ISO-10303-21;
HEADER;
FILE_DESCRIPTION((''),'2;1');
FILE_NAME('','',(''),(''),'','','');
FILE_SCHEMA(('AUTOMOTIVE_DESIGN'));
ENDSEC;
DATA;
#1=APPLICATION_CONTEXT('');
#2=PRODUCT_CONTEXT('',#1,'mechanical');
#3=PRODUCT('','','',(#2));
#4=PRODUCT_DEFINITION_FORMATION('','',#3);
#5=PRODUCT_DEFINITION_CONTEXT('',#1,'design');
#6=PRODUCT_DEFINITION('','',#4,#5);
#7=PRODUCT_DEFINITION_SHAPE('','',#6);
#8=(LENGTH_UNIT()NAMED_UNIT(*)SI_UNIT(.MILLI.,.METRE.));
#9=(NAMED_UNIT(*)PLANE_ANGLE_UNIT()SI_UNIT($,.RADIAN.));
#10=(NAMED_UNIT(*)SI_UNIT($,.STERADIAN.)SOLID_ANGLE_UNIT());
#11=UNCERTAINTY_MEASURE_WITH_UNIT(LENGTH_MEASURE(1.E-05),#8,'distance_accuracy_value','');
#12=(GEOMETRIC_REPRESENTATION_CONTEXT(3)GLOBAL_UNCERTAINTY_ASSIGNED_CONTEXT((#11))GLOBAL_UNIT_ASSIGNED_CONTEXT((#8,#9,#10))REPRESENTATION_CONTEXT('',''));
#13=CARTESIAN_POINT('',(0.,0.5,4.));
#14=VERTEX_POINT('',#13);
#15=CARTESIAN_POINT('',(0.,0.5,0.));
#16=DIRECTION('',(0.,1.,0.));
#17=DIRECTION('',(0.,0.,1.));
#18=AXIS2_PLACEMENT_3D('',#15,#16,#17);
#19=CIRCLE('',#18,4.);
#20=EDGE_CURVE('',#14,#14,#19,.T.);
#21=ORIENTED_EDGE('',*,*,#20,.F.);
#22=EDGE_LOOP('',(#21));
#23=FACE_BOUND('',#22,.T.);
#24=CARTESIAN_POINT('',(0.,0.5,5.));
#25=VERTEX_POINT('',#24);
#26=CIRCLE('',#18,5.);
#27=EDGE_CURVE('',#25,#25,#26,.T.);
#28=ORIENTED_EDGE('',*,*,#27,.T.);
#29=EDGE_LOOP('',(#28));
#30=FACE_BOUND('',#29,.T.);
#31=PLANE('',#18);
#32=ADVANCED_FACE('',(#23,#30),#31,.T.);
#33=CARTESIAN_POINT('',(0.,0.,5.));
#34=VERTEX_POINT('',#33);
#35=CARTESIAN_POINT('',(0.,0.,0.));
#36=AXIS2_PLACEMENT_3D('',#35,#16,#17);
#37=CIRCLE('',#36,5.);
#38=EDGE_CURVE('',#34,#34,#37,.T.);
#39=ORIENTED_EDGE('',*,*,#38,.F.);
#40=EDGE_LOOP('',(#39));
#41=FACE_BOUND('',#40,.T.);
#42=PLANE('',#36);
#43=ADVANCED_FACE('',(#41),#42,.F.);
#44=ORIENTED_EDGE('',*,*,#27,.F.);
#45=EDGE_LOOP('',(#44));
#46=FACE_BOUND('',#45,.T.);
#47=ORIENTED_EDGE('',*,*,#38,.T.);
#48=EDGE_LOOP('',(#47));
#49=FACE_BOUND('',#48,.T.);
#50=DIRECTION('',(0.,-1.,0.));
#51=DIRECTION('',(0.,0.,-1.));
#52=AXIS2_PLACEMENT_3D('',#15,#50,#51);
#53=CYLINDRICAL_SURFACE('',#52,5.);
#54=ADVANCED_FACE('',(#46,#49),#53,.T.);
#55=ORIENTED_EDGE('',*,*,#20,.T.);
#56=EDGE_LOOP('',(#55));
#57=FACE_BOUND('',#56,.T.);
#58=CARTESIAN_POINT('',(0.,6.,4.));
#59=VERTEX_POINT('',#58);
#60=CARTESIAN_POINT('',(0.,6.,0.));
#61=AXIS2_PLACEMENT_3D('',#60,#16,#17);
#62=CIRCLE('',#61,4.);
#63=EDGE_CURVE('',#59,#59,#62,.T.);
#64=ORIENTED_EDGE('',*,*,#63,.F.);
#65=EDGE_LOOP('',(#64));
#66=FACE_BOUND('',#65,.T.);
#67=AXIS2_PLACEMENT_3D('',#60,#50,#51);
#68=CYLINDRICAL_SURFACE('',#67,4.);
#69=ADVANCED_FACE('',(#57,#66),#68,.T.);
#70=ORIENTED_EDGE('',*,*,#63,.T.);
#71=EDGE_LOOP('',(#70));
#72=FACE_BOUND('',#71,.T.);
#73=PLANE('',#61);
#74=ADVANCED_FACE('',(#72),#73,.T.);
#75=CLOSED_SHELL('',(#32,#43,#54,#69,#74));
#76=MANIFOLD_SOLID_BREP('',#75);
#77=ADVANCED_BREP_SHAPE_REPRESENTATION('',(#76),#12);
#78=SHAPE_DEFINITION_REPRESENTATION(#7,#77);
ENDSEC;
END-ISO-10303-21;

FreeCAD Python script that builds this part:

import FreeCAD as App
import Part
import Sketcher

V = App.Vector

doc = App.newDocument("Part")
params = doc.addObject("Spreadsheet::Sheet", "Params")
for row, (alias, value) in enumerate([
    ("sketch1_diameter", "10 mm"),
    ("sketch1_diameter2", "8 mm"),
    ("pad1_length", "0.5 mm"),
    ("sketch2_diameter", "8 mm"),
    ("pad2_length", "6 mm"),
], start=1):
    params.set(f"A{row}", alias)
    params.set(f"B{row}", "=" + value)
    params.setAlias(f"B{row}", alias)

body = doc.addObject("PartDesign::Body", "Body")

sketch1 = body.newObject("Sketcher::SketchObject", "Sketch")
sketch1.AttachmentSupport = (doc.getObject("XZ_Plane"), [""])
sketch1.MapMode = "FlatFace"
sketch1.addGeometry([
    Part.Circle(V(0, 0, 0), V(0, 0, 1), 5),
    Part.Circle(V(0, 0, 0), V(0, 0, 1), 4),
], False)
sketch1.addConstraint([
    Sketcher.Constraint("Coincident", 0, 3, -1, 1),
    Sketcher.Constraint("Coincident", 1, 3, -1, 1),
    Sketcher.Constraint("Diameter", 0, 10.0),
    Sketcher.Constraint("Diameter", 1, 8.0),
])
sketch1.setExpression("Constraints[2]", "Params.sketch1_diameter")
sketch1.setExpression("Constraints[3]", "Params.sketch1_diameter2")
pad1 = body.newObject("PartDesign::Pad", "Pad")
pad1.Profile = sketch1
pad1.setExpression("Length", "Params.pad1_length")
pad1.Reversed = True

sketch2 = body.newObject("Sketcher::SketchObject", "Sketch001")
sketch2.AttachmentSupport = (doc.getObject("XZ_Plane"), [""])
sketch2.MapMode = "FlatFace"
sketch2.addGeometry(Part.Circle(V(0, 0, 0), V(0, 0, 1), 4), False)
sketch2.addConstraint([
    Sketcher.Constraint("Coincident", 0, 3, -1, 1),
    Sketcher.Constraint("Diameter", 0, 8.0),
])
sketch2.setExpression("Constraints[1]", "Params.sketch2_diameter")
pad2 = body.newObject("PartDesign::Pad", "Pad001")
pad2.Profile = sketch2
pad2.setExpression("Length", "Params.pad2_length")
pad2.Reversed = True

doc.recompute()
